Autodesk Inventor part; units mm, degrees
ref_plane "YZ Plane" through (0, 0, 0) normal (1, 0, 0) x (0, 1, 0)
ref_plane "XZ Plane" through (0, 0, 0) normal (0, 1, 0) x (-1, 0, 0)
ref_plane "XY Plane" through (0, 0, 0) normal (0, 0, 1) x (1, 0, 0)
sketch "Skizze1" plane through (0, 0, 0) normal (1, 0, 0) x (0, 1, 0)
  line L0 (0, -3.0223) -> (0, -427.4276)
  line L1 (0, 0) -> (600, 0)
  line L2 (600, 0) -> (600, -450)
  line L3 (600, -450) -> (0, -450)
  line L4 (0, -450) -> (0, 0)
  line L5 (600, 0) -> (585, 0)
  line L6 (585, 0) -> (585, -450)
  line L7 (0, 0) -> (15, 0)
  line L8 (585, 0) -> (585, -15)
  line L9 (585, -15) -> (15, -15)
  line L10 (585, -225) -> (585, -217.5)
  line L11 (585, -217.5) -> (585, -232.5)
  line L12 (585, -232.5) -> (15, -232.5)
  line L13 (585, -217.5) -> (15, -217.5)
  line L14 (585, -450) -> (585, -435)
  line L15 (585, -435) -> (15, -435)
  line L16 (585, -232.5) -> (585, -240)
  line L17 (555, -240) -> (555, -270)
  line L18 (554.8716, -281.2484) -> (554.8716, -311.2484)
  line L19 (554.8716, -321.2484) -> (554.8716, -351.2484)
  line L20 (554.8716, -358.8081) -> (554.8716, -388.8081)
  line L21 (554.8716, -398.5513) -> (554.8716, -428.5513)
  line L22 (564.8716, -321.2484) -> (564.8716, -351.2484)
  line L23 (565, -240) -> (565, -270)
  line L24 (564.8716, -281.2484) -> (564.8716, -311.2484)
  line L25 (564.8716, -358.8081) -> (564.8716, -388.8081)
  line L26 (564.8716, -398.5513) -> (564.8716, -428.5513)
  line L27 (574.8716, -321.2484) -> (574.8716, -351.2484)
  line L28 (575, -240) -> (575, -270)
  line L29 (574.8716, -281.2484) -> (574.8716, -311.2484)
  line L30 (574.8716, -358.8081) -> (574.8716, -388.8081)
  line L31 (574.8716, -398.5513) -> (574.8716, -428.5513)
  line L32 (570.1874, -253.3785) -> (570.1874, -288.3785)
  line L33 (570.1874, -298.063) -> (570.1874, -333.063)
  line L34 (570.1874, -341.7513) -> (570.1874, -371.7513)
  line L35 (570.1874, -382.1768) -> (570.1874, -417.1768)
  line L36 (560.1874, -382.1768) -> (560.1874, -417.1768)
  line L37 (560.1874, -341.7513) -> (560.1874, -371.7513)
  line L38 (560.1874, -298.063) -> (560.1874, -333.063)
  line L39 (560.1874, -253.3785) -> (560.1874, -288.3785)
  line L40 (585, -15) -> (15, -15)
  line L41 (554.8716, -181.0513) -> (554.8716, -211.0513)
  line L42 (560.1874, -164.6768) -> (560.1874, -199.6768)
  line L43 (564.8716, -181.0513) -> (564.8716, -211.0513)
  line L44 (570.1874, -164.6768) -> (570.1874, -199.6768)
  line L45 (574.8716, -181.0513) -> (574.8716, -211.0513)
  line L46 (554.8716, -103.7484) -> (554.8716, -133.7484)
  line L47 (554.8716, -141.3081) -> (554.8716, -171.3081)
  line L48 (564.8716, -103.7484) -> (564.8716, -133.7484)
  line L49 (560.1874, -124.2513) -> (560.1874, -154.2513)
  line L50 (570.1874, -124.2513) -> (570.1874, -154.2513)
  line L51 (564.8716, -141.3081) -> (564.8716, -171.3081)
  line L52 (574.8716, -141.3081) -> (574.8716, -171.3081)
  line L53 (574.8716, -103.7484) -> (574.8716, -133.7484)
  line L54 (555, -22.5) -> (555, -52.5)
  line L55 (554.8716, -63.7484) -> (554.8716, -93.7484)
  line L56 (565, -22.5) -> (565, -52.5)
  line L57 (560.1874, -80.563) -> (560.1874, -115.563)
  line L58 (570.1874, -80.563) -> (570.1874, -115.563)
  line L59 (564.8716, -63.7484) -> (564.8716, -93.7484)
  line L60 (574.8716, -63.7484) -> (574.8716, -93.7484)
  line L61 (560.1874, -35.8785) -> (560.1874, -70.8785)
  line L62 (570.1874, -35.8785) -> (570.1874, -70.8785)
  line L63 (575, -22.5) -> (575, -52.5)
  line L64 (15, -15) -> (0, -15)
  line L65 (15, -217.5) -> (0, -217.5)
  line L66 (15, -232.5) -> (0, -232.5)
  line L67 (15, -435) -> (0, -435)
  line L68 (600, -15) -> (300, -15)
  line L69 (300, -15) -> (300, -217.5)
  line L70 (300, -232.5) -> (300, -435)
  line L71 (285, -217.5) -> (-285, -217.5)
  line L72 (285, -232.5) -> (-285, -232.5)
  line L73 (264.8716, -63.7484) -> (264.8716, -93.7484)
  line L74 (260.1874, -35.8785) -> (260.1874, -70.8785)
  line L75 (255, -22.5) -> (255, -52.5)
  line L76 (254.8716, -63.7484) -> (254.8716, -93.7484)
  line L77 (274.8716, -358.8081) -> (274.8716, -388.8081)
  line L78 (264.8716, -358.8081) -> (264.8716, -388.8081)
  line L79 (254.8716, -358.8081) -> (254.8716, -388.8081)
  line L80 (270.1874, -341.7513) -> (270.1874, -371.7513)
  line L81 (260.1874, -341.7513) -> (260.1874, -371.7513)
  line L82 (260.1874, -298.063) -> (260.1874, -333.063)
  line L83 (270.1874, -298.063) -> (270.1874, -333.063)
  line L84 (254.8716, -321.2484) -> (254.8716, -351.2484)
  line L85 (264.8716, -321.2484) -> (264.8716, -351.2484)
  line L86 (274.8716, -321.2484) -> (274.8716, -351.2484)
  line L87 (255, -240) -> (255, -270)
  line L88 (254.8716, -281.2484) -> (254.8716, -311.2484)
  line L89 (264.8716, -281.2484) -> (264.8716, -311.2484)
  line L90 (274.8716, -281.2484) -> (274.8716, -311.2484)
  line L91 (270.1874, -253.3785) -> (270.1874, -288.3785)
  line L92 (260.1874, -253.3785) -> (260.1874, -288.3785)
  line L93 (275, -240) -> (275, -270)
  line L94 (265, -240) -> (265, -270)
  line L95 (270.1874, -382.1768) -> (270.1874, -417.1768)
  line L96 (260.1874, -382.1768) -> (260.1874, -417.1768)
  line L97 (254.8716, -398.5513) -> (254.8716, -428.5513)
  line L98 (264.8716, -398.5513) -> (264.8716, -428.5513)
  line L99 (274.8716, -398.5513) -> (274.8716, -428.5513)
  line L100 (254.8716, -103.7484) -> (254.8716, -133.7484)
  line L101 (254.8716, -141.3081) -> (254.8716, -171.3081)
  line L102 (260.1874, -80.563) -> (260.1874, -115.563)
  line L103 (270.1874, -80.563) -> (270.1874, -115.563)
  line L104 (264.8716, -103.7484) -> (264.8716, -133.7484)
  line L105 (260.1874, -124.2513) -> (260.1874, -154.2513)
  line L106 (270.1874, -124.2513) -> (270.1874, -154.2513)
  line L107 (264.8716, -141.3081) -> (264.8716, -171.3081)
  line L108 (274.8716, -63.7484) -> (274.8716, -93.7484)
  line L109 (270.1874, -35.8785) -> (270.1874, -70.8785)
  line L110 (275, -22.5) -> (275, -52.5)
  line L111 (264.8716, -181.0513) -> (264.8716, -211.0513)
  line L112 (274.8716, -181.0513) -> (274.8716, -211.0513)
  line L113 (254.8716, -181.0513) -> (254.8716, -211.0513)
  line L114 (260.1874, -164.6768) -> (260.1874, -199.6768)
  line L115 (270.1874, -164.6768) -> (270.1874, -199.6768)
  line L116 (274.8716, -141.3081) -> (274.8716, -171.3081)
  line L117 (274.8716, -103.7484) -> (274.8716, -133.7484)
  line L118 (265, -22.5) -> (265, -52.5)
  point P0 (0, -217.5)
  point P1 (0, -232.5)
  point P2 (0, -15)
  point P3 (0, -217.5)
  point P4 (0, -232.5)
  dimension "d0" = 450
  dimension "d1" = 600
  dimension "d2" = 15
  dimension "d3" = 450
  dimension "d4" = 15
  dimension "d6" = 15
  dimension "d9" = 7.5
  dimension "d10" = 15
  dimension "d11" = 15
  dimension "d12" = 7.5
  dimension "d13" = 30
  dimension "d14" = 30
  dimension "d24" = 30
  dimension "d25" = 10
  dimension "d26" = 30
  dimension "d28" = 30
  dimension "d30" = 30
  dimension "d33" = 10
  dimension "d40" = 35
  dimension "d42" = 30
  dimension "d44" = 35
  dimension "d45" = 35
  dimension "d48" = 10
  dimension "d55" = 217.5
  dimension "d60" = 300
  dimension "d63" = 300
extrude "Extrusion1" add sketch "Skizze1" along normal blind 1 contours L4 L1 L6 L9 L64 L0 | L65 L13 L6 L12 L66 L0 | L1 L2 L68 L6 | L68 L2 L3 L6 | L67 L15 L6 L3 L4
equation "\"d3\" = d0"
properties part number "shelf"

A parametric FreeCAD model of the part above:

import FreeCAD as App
import Part
import Sketcher
Q = App.Units.Quantity


def add_polygon(sketch, points):
    """Adds a closed chain of lines whose ends are joined by coincident constraints."""
    first, n = sketch.GeometryCount, len(points)
    for a, b in zip(points, points[1:] + points[:1]):
        sketch.addGeometry(Part.LineSegment(App.Vector(*a, 0), App.Vector(*b, 0)), False)
    for i in range(n):
        sketch.addConstraint(Sketcher.Constraint("Coincident", first + i, 2, first + (i + 1) % n, 1))

doc = App.newDocument("Part")
params = doc.addObject("Spreadsheet::Sheet", "Params")
for row, (alias, value) in enumerate([
    ("sketch1_width", "600 mm"),
    ("sketch1_height", "15 mm"),
    ("sketch1_height2", "450 mm"),
    ("pad1_length", "1 mm"),
], start=1):
    params.set(f"A{row}", alias)
    params.set(f"B{row}", "=" + value)
    params.setAlias(f"B{row}", alias)

body = doc.addObject("PartDesign::Body", "Body")

sketch1 = doc.addObject("Sketcher::SketchObject", "Sketch")
body.addObject(sketch1)
sketch1.AttachmentSupport = (doc.YZ_Plane, [""])
sketch1.MapMode = "FlatFace"
add_polygon(sketch1, [(0, 0), (0, -15), (585, -15), (585, -217.5), (0, -217.5), (0, -232.5), (585, -232.5), (585, -435), (0, -435), (0, -450), (600, -450), (600, 0)])
sketch1.addConstraint([
    Sketcher.Constraint("Vertical", 0),
    Sketcher.Constraint("Horizontal", 1),
    Sketcher.Constraint("Vertical", 2),
    Sketcher.Constraint("Horizontal", 3),
    Sketcher.Constraint("Vertical", 4),
    Sketcher.Constraint("Horizontal", 5),
    Sketcher.Constraint("Vertical", 6),
    Sketcher.Constraint("Horizontal", 7),
    Sketcher.Constraint("Vertical", 8),
    Sketcher.Constraint("Horizontal", 9),
    Sketcher.Constraint("Vertical", 10),
    Sketcher.Constraint("Horizontal", 11),
    Sketcher.Constraint("Coincident", 11, 2, -1, 1),
    Sketcher.Constraint("PointOnObject", 3, 2, -2),
    Sketcher.Constraint("PointOnObject", 7, 2, -2),
    Sketcher.Constraint("Vertical", 2, 2, 5, 2),
    Sketcher.Constraint("Equal", 0, 4),
    Sketcher.Constraint("Equal", 2, 6),
    Sketcher.Constraint("Equal", 4, 8),
    Sketcher.Constraint("DistanceX", 9, 1, 9, 2, Q("600 mm")),
    Sketcher.Constraint("DistanceY", 0, 2, 0, 1, Q("15 mm")),
    Sketcher.Constraint("DistanceY", 10, 1, 10, 2, Q("450 mm")),
    Sketcher.Constraint("DistanceX", 6, 2, 9, 2, Q("15 mm")),
])
sketch1.setExpression("Constraints[31]", "Params.sketch1_width")
sketch1.setExpression("Constraints[32]", "Params.sketch1_height")
sketch1.setExpression("Constraints[33]", "Params.sketch1_height2")
pad1 = doc.addObject("PartDesign::Pad", "Pad")
body.addObject(pad1)
pad1.Profile = sketch1
pad1.setExpression("Length", "Params.pad1_length")

doc.recompute()
